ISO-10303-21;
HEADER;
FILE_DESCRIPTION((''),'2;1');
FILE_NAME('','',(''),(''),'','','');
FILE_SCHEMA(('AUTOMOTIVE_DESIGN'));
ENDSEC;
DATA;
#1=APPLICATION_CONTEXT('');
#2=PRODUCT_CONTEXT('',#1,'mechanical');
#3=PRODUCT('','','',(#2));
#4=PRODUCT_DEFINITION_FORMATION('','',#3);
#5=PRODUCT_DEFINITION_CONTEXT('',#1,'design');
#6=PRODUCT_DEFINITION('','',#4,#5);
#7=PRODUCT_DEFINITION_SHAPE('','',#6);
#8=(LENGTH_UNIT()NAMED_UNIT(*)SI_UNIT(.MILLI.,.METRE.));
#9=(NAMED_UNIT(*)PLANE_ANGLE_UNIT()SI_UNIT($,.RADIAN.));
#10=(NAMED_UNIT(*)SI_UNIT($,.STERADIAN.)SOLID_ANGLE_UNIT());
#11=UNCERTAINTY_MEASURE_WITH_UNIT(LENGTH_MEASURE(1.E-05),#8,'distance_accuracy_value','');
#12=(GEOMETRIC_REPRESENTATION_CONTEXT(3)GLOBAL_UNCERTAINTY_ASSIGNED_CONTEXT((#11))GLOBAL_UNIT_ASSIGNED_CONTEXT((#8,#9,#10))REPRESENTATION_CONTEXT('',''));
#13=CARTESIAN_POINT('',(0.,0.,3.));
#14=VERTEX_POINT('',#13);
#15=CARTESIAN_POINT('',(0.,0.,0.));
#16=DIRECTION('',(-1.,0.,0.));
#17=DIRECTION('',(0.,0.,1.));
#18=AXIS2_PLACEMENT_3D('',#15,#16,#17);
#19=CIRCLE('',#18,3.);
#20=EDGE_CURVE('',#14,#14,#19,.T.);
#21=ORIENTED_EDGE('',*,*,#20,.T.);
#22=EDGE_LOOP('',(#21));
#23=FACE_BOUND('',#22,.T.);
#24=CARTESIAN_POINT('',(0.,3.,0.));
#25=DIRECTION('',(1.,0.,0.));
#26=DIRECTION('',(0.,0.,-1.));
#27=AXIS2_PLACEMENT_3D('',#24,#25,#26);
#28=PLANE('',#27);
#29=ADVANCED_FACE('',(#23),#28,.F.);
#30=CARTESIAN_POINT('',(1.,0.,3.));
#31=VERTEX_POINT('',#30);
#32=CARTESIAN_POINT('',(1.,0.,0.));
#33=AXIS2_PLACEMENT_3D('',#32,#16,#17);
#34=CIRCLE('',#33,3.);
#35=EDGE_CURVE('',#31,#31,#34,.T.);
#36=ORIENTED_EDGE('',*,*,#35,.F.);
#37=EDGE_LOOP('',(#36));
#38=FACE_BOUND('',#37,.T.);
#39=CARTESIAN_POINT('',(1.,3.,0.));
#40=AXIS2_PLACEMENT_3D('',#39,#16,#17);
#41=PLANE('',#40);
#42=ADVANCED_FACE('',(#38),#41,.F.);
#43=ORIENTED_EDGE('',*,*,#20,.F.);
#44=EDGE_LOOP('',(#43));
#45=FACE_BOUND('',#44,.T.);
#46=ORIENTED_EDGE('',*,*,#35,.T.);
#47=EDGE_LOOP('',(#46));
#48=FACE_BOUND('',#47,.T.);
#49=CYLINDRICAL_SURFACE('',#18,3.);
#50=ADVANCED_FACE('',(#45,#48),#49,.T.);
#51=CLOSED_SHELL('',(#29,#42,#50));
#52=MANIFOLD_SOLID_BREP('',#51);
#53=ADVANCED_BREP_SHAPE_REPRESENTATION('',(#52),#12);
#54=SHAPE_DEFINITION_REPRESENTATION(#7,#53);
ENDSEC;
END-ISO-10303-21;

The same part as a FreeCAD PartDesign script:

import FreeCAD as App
import Part
import Sketcher

doc = App.newDocument("Part")
body = doc.addObject("PartDesign::Body", "Body")

# Sketch on XY plane
sketch1 = doc.addObject("Sketcher::SketchObject", "Sketch")
body.addObject(sketch1)
sketch1.AttachmentSupport = (doc.XY_Plane, [""])
sketch1.MapMode = "FlatFace"
sketch1.addGeometry(Part.LineSegment(App.Vector(0, 3, 0), App.Vector(0, 0, 0)), False)
sketch1.addGeometry(Part.LineSegment(App.Vector(0, 0, 0), App.Vector(1, 0, 0)), False)
sketch1.addGeometry(Part.LineSegment(App.Vector(1, 0, 0), App.Vector(1, 3, 0)), False)
sketch1.addGeometry(Part.LineSegment(App.Vector(1, 3, 0), App.Vector(0, 3, 0)), False)
sketch1.addConstraint(Sketcher.Constraint("Coincident", 0, 2, 1, 1))
sketch1.addConstraint(Sketcher.Constraint("Coincident", 1, 2, 2, 1))
sketch1.addConstraint(Sketcher.Constraint("Coincident", 2, 2, 3, 1))
sketch1.addConstraint(Sketcher.Constraint("Coincident", 3, 2, 0, 1))
sketch1.addConstraint(Sketcher.Constraint("Vertical", 0))
sketch1.addConstraint(Sketcher.Constraint("Horizontal", 1))
sketch1.addConstraint(Sketcher.Constraint("Vertical", 2))
sketch1.addConstraint(Sketcher.Constraint("Horizontal", 3))
sketch1.addConstraint(Sketcher.Constraint("Coincident", 0, 2, -1, 1))
sketch1.addConstraint(Sketcher.Constraint("DistanceX", 1, 1, 1, 2, 1.0))
sketch1.addConstraint(Sketcher.Constraint("DistanceY", 0, 2, 0, 1, 3.0))
revolution = doc.addObject("PartDesign::Revolution", "Revolution")
body.addObject(revolution)
revolution.Profile = sketch1
revolution.ReferenceAxis = (sketch1, ["H_Axis"])
revolution.Angle = 360

doc.recompute()
